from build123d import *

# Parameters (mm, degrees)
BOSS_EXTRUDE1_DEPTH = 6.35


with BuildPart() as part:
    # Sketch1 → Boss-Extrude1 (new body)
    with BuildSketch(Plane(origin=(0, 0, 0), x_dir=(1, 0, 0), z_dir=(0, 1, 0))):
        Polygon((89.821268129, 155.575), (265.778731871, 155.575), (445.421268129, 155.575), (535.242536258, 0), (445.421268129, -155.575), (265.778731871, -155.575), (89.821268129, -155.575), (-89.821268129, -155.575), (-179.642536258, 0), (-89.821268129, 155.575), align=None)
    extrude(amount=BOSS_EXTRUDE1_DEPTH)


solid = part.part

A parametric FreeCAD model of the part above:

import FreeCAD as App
import Part
import Sketcher
from FreeCAD import Vector
Q = App.Units.Quantity

doc = App.newDocument("Part")
body = doc.addObject("PartDesign::Body", "Body")

sketch1 = body.newObject("Sketcher::SketchObject", "Sketch")
sketch1.AttachmentSupport = (doc.getObject("XZ_Plane"), [""])
sketch1.MapMode = "FlatFace"
sketch1.addGeometry(Part.LineSegment(Vector(445, -156, 0), Vector(-90, -156, 0)), False)
sketch1.addGeometry(Part.LineSegment(Vector(-90, -156, 0), Vector(-180, 0, 0)), False)
sketch1.addGeometry(Part.LineSegment(Vector(-180, 0, 0), Vector(-90, 156, 0)), False)
sketch1.addGeometry(Part.LineSegment(Vector(-90, 156, 0), Vector(445, 156, 0)), False)
sketch1.addGeometry(Part.LineSegment(Vector(445, 156, 0), Vector(535, 0, 0)), False)
sketch1.addGeometry(Part.LineSegment(Vector(535, 0, 0), Vector(445, -156, 0)), False)
sketch1.addConstraint(Sketcher.Constraint("Coincident", 0, 2, 1, 1))
sketch1.addConstraint(Sketcher.Constraint("Coincident", 1, 2, 2, 1))
sketch1.addConstraint(Sketcher.Constraint("Coincident", 2, 2, 3, 1))
sketch1.addConstraint(Sketcher.Constraint("Coincident", 3, 2, 4, 1))
sketch1.addConstraint(Sketcher.Constraint("Coincident", 4, 2, 5, 1))
sketch1.addConstraint(Sketcher.Constraint("Coincident", 5, 2, 0, 1))
sketch1.addConstraint(Sketcher.Constraint("Horizontal", 0))
sketch1.addConstraint(Sketcher.Constraint("Horizontal", 3))
sketch1.addConstraint(Sketcher.Constraint("Symmetric", 0, 2, 2, 2, -1))
sketch1.addConstraint(Sketcher.Constraint("PointOnObject", 1, 2, -1))
sketch1.addConstraint(Sketcher.Constraint("PointOnObject", 4, 2, -1))
sketch1.addConstraint(Sketcher.Constraint("Parallel", 1, 4))
sketch1.addConstraint(Sketcher.Constraint("Parallel", 2, 5))
sketch1.addConstraint(Sketcher.Constraint("Angle", 1, Q("120 deg")))
sketch1.addConstraint(Sketcher.Constraint("DistanceY", 0, 2, 2, 2, Q("12.25 in")))
sketch1.addConstraint(Sketcher.Constraint("DistanceX", 0, 2, 0, 1, Q("535.242536 mm")))
sketch1.addConstraint(Sketcher.Constraint("DistanceX", 0, 2, -1, 1, Q("89.821268 mm")))
pad1 = body.newObject("PartDesign::Pad", "Pad")
pad1.Profile = sketch1
pad1.Length = Q("0.25 in")
pad1.Reversed = True

doc.recompute()
